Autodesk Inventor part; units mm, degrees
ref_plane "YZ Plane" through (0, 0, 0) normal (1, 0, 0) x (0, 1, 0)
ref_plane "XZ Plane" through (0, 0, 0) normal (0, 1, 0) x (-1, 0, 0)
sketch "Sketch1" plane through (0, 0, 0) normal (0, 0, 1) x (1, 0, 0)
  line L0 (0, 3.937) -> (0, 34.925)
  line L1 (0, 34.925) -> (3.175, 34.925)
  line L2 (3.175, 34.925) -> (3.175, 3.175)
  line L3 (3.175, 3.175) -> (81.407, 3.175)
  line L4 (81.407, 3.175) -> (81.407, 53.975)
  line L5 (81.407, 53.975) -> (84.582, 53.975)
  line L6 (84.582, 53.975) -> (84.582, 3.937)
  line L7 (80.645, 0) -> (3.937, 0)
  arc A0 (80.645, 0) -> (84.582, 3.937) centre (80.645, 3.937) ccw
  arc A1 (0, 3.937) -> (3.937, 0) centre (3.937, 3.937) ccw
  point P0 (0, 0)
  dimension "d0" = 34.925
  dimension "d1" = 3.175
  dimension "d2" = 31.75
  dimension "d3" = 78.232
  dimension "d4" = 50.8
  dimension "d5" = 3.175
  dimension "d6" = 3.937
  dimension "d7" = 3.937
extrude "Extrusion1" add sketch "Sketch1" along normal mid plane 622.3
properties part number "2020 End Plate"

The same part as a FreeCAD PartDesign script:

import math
import FreeCAD as App
import Part
import Sketcher
from FreeCAD import Vector
Q = App.Units.Quantity

doc = App.newDocument("Part")
params = doc.addObject("Spreadsheet::Sheet", "Params")
for row, (alias, value) in enumerate([
    ("sketch1_height", "2 in"),
    ("sketch1_radius", "0.155 in"),
    ("sketch1_width", "3.08 in"),
    ("sketch1_height2", "1.25 in"),
    ("sketch1_width2", "0.125 in"),
    ("pad1_length", "24.5 in"),
], start=1):
    params.set(f"A{row}", alias)
    params.set(f"B{row}", "=" + value)
    params.setAlias(f"B{row}", alias)

body = doc.addObject("PartDesign::Body", "Body")

sketch1 = body.newObject("Sketcher::SketchObject", "Sketch")
sketch1.AttachmentSupport = (doc.getObject("XY_Plane"), [""])
sketch1.MapMode = "FlatFace"
sketch1.addGeometry(Part.LineSegment(Vector(0, 34.9, 0), Vector(0, 3.9, 0)), False)
sketch1.addGeometry(Part.ArcOfCircle(Part.Circle(Vector(3.9, 3.9, 0), Vector(0, 0, 1), 3.9), math.radians(180), math.radians(270)), False)
sketch1.addGeometry(Part.LineSegment(Vector(3.9, 0, 0), Vector(80.6, 0, 0)), False)
sketch1.addGeometry(Part.ArcOfCircle(Part.Circle(Vector(80.6, 3.9, 0), Vector(0, 0, 1), 3.9), math.radians(-90), math.radians(0)), False)
sketch1.addGeometry(Part.LineSegment(Vector(84.6, 3.9, 0), Vector(84.6, 54, 0)), False)
sketch1.addGeometry(Part.LineSegment(Vector(84.6, 54, 0), Vector(81.4, 54, 0)), False)
sketch1.addGeometry(Part.LineSegment(Vector(81.4, 54, 0), Vector(81.4, 3.2, 0)), False)
sketch1.addGeometry(Part.LineSegment(Vector(81.4, 3.2, 0), Vector(3.2, 3.2, 0)), False)
sketch1.addGeometry(Part.LineSegment(Vector(3.2, 3.2, 0), Vector(3.2, 34.9, 0)), False)
sketch1.addGeometry(Part.LineSegment(Vector(3.2, 34.9, 0), Vector(0, 34.9, 0)), False)
sketch1.addConstraint(Sketcher.Constraint("Tangent", 0, 2, 1, 1))
sketch1.addConstraint(Sketcher.Constraint("Tangent", 1, 2, 2, 1))
sketch1.addConstraint(Sketcher.Constraint("Tangent", 2, 2, 3, 1))
sketch1.addConstraint(Sketcher.Constraint("Tangent", 3, 2, 4, 1))
sketch1.addConstraint(Sketcher.Constraint("Coincident", 4, 2, 5, 1))
sketch1.addConstraint(Sketcher.Constraint("Coincident", 5, 2, 6, 1))
sketch1.addConstraint(Sketcher.Constraint("Coincident", 6, 2, 7, 1))
sketch1.addConstraint(Sketcher.Constraint("Coincident", 7, 2, 8, 1))
sketch1.addConstraint(Sketcher.Constraint("Coincident", 8, 2, 9, 1))
sketch1.addConstraint(Sketcher.Constraint("Coincident", 9, 2, 0, 1))
sketch1.addConstraint(Sketcher.Constraint("Vertical", 0))
sketch1.addConstraint(Sketcher.Constraint("Horizontal", 2))
sketch1.addConstraint(Sketcher.Constraint("Vertical", 4))
sketch1.addConstraint(Sketcher.Constraint("Horizontal", 5))
sketch1.addConstraint(Sketcher.Constraint("Vertical", 6))
sketch1.addConstraint(Sketcher.Constraint("Horizontal", 7))
sketch1.addConstraint(Sketcher.Constraint("Vertical", 8))
sketch1.addConstraint(Sketcher.Constraint("Horizontal", 9))
sketch1.addConstraint(Sketcher.Constraint("Equal", 1, 3))
sketch1.addConstraint(Sketcher.Constraint("PointOnObject", 0, 2, -2))
sketch1.addConstraint(Sketcher.Constraint("PointOnObject", 1, 2, -1))
sketch1.addConstraint(Sketcher.Constraint("Equal", 5, 9))
sketch1.addConstraint(Sketcher.Constraint("DistanceY", 6, 2, 6, 1, Q("2 in")))
sketch1.addConstraint(Sketcher.Constraint("Radius", 1, Q("0.155 in")))
sketch1.addConstraint(Sketcher.Constraint("DistanceX", 7, 2, 7, 1, Q("3.08 in")))
sketch1.addConstraint(Sketcher.Constraint("DistanceY", 8, 1, 8, 2, Q("1.25 in")))
sketch1.addConstraint(Sketcher.Constraint("DistanceX", 5, 2, 5, 1, Q("0.125 in")))
sketch1.addConstraint(Sketcher.Constraint("DistanceY", -1, 1, 6, 2, Q("0.125 in")))
sketch1.setExpression("Constraints[22]", "Params.sketch1_height")
sketch1.setExpression("Constraints[23]", "Params.sketch1_radius")
sketch1.setExpression("Constraints[24]", "Params.sketch1_width")
sketch1.setExpression("Constraints[25]", "Params.sketch1_height2")
sketch1.setExpression("Constraints[26]", "Params.sketch1_width2")
pad1 = body.newObject("PartDesign::Pad", "Pad")
pad1.Profile = sketch1
pad1.setExpression("Length", "Params.pad1_length")
pad1.Midplane = True

doc.recompute()
